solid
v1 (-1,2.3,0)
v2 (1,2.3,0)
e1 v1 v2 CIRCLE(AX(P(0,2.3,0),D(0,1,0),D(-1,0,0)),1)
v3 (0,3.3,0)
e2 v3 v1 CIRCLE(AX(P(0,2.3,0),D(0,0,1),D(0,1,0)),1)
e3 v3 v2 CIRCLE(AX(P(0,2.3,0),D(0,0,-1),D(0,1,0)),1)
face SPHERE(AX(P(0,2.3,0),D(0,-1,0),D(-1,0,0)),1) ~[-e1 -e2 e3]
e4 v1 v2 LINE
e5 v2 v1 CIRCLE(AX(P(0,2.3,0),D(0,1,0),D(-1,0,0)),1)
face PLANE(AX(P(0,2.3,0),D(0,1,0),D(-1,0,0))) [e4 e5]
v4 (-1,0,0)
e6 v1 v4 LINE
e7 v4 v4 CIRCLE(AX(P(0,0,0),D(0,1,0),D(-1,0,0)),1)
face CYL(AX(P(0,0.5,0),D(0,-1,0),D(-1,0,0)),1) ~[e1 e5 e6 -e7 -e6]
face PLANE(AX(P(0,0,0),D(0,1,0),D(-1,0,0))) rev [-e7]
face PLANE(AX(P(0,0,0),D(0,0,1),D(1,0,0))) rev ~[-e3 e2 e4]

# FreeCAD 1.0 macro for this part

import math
import FreeCAD as App
import Part
import Sketcher


def add_polygon(sketch, points):
    """Adds a closed chain of lines whose ends are joined by coincident constraints."""
    first, n = sketch.GeometryCount, len(points)
    for a, b in zip(points, points[1:] + points[:1]):
        sketch.addGeometry(Part.LineSegment(App.Vector(*a, 0), App.Vector(*b, 0)), False)
    for i in range(n):
        sketch.addConstraint(Sketcher.Constraint("Coincident", first + i, 2, first + (i + 1) % n, 1))

doc = App.newDocument("Part")
body = doc.addObject("PartDesign::Body", "Body")

# Sketch on XY plane
sketch1 = body.newObject("Sketcher::SketchObject", "Sketch")
sketch1.AttachmentSupport = (doc.getObject("XY_Plane"), [""])
sketch1.MapMode = "FlatFace"
add_polygon(sketch1, [(-1, 0), (0, 0), (0, 2.3), (-1, 2.3)])  # lines 0-3
sketch1.addConstraint([
    Sketcher.Constraint("Horizontal", 0),
    Sketcher.Constraint("Vertical", 1),
    Sketcher.Constraint("Horizontal", 2),
    Sketcher.Constraint("Vertical", 3),
    Sketcher.Constraint("Coincident", 0, 2, -1, 1),
    Sketcher.Constraint("DistanceY", 1, 1, 1, 2, 2.3),
    Sketcher.Constraint("DistanceX", 0, 1, 0, 2, 1.0),
])
revolution = body.newObject("PartDesign::Revolution", "Revolution")
revolution.Profile = sketch1
revolution.ReferenceAxis = (sketch1, ["V_Axis"])
revolution.Angle = 360

# Sketch on XY plane
sketch2 = body.newObject("Sketcher::SketchObject", "Sketch001")
sketch2.AttachmentSupport = (doc.getObject("XY_Plane"), [""])
sketch2.MapMode = "FlatFace"
sketch2.addGeometry([
    Part.LineSegment(App.Vector(-1, 2.3, 0), App.Vector(0, 2.3, 0)),
    Part.LineSegment(App.Vector(0, 2.3, 0), App.Vector(0, 3.3, 0)),
    Part.ArcOfCircle(Part.Circle(App.Vector(0, 2.3, 0), App.Vector(0, 0, 1), 1), math.radians(90), math.radians(180)),
], False)
sketch2.addConstraint([
    Sketcher.Constraint("Coincident", 0, 2, 1, 1),
    Sketcher.Constraint("Coincident", 1, 2, 2, 1),
    Sketcher.Constraint("Coincident", 2, 2, 0, 1),
    Sketcher.Constraint("Horizontal", 0),
    Sketcher.Constraint("Vertical", 1),
    Sketcher.Constraint("Coincident", 0, 2, 2, 3),
    Sketcher.Constraint("PointOnObject", 2, 3, -2),
    Sketcher.Constraint("Radius", 2, 1.0),
    Sketcher.Constraint("DistanceY", -1, 1, 2, 3, 2.3),
])
revolution2 = body.newObject("PartDesign::Revolution", "Revolution001")
revolution2.Profile = sketch2
revolution2.ReferenceAxis = (sketch2, ["V_Axis"])
revolution2.Angle = 180

doc.recompute()
